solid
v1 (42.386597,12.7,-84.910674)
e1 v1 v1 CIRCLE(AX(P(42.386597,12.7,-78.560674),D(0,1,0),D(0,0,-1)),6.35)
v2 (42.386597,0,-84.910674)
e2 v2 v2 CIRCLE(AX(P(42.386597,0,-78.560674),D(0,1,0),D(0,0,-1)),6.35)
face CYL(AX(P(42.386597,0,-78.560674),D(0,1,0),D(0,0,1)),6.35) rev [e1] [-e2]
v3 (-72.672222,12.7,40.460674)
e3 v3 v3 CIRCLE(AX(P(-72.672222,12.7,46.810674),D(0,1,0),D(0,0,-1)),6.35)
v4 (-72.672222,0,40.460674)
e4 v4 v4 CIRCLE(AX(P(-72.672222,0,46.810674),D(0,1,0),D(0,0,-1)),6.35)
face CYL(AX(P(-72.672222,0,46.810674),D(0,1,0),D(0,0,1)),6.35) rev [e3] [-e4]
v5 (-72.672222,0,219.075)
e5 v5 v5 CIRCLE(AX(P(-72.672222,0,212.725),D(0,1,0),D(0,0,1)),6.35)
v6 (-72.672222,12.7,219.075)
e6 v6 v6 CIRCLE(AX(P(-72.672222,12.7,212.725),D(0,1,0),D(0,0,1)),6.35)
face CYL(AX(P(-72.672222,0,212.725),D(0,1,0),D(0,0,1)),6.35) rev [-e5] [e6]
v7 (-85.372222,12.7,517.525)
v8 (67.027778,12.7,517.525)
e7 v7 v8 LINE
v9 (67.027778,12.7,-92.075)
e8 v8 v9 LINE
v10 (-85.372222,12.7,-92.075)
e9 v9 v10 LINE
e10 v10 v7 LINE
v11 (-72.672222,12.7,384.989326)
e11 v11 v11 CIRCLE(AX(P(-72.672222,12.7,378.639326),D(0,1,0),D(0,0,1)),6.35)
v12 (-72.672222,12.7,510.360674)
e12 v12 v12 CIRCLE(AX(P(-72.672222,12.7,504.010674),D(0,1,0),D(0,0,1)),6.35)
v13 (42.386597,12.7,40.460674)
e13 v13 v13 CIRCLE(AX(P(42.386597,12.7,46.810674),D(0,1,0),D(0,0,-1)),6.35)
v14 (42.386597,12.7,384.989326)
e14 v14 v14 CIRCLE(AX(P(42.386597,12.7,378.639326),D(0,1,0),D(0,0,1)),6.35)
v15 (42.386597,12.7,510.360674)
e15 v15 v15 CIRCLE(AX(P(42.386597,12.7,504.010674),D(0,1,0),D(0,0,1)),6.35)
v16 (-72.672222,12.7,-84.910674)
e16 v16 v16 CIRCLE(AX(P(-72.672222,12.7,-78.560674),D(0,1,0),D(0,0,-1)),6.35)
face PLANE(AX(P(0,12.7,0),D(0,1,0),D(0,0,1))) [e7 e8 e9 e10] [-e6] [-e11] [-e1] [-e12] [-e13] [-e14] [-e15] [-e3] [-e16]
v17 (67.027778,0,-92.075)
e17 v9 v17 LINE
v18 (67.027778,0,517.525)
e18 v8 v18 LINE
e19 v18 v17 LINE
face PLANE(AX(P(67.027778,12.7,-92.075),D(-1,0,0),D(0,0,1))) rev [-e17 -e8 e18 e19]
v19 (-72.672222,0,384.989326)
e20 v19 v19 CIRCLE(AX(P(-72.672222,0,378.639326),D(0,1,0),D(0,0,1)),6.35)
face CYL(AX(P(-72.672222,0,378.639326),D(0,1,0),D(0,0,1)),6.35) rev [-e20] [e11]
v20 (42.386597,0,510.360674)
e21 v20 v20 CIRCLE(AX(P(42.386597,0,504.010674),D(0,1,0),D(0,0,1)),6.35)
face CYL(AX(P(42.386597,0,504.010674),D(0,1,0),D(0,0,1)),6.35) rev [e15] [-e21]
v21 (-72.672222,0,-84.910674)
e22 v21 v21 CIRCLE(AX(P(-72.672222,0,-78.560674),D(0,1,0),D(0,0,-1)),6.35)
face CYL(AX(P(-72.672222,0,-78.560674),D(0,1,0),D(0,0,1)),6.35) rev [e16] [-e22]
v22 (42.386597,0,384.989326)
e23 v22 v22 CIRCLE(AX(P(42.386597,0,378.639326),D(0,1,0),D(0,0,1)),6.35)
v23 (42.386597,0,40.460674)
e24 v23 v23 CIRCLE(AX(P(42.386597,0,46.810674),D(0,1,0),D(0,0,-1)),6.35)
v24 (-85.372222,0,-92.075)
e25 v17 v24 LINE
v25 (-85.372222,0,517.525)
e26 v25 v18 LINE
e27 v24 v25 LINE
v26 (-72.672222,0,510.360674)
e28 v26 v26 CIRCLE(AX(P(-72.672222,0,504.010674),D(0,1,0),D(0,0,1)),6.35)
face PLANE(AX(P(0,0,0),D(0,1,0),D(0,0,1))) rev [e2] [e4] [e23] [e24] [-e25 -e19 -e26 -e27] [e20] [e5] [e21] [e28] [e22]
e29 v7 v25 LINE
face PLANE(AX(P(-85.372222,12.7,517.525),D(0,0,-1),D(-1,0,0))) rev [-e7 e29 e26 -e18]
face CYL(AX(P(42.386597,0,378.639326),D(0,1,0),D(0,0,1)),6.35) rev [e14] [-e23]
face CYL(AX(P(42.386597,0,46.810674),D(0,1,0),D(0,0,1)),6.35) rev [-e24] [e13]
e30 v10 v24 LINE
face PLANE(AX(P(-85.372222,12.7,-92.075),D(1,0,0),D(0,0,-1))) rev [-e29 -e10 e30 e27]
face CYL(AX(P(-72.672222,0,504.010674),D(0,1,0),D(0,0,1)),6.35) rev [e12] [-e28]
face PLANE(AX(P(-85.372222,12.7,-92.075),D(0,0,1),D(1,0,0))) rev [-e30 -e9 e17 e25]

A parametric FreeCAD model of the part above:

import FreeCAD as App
import Part
import Sketcher

V = App.Vector
Q = App.Units.Quantity


def add_polygon(sketch, points):
    """Adds a closed chain of lines whose ends are joined by coincident constraints."""
    first, n = sketch.GeometryCount, len(points)
    for a, b in zip(points, points[1:] + points[:1]):
        sketch.addGeometry(Part.LineSegment(App.Vector(*a, 0), App.Vector(*b, 0)), False)
    for i in range(n):
        sketch.addConstraint(Sketcher.Constraint("Coincident", first + i, 2, first + (i + 1) % n, 1))

doc = App.newDocument("Part")
params = doc.addObject("Spreadsheet::Sheet", "Params")
for row, (alias, value) in enumerate([
    ("sketch1_width", "6 in"),
    ("sketch1_height", "24 in"),
    ("pad1_length", "0.5 in"),
    ("sketch2_diameter", "0.5 in"),
    ("pocket1_length", "0.5 in"),
], start=1):
    params.set(f"A{row}", alias)
    params.set(f"B{row}", "=" + value)
    params.setAlias(f"B{row}", alias)

body = doc.addObject("PartDesign::Body", "Body")

# Sketch on XZ plane
sketch1 = doc.addObject("Sketcher::SketchObject", "Sketch")
body.addObject(sketch1)
sketch1.AttachmentSupport = (doc.XZ_Plane, [""])
sketch1.MapMode = "FlatFace"
add_polygon(sketch1, [(-85, -92), (-85, 518), (67, 518), (67, -92)])  # lines 0-3
sketch1.addConstraint([
    Sketcher.Constraint("Vertical", 0),
    Sketcher.Constraint("Horizontal", 1),
    Sketcher.Constraint("Vertical", 2),
    Sketcher.Constraint("Horizontal", 3),
    Sketcher.Constraint("DistanceX", 1, 1, 1, 2, Q("6 in")),
    Sketcher.Constraint("DistanceY", 0, 1, 0, 2, Q("24 in")),
    Sketcher.Constraint("DistanceY", -1, 1, 0, 2, Q("20.375 in")),
    Sketcher.Constraint("DistanceX", 0, 2, -1, 1, Q("85.372222 mm")),
])
sketch1.setExpression("Constraints[8]", "Params.sketch1_width")
sketch1.setExpression("Constraints[9]", "Params.sketch1_height")
pad1 = doc.addObject("PartDesign::Pad", "Pad")
body.addObject(pad1)
pad1.Profile = sketch1
pad1.setExpression("Length", "Params.pad1_length")
pad1.Reversed = True

# Sketch on XZ plane
sketch2 = doc.addObject("Sketcher::SketchObject", "Sketch001")
body.addObject(sketch2)
sketch2.AttachmentSupport = (doc.XZ_Plane, [""])
sketch2.MapMode = "FlatFace"
sketch2.AttachmentOffset = App.Placement(V(0, 0, -0.5 * 25.4), App.Rotation())
sketch2.addGeometry([
    Part.Circle(V(-73, 213, 0), V(0, 0, 1), 6),  # 0
    Part.Circle(V(-73, 379, 0), V(0, 0, 1), 6),  # 1
    Part.Circle(V(-73, 504, 0), V(0, 0, 1), 6),  # 2
    Part.Circle(V(42, 504, 0), V(0, 0, 1), 6),  # 3
    Part.Circle(V(42, 379, 0), V(0, 0, 1), 6),  # 4
    Part.Circle(V(42, 47, 0), V(0, 0, 1), 6),  # 5
    Part.Circle(V(42, -79, 0), V(0, 0, 1), 6),  # 6
    Part.Circle(V(-73, 47, 0), V(0, 0, 1), 6),  # 7
    Part.Circle(V(-73, -79, 0), V(0, 0, 1), 6),  # 8
], False)
sketch2.addConstraint([
    Sketcher.Constraint("Equal", 0, 1),
    Sketcher.Constraint("Equal", 1, 2),
    Sketcher.Constraint("Equal", 2, 3),
    Sketcher.Constraint("Equal", 3, 4),
    Sketcher.Constraint("Equal", 4, 5),
    Sketcher.Constraint("Equal", 5, 6),
    Sketcher.Constraint("Equal", 6, 7),
    Sketcher.Constraint("Equal", 7, 8),
    Sketcher.Constraint("Horizontal", 2, 3, 3, 3),
    Sketcher.Constraint("Horizontal", 1, 3, 4, 3),
    Sketcher.Constraint("Horizontal", 5, 3, 7, 3),
    Sketcher.Constraint("Horizontal", 6, 3, 8, 3),
    Sketcher.Constraint("Vertical", 0, 3, 1, 3),
    Sketcher.Constraint("Vertical", 1, 3, 2, 3),
    Sketcher.Constraint("Vertical", 3, 3, 4, 3),
    Sketcher.Constraint("Vertical", 4, 3, 5, 3),
    Sketcher.Constraint("Vertical", 5, 3, 6, 3),
    Sketcher.Constraint("Vertical", 2, 3, 7, 3),
    Sketcher.Constraint("Vertical", 7, 3, 8, 3),
    Sketcher.Constraint("Diameter", 0, Q("0.5 in")),
    Sketcher.Constraint("DistanceY", 5, 3, 3, 3, Q("18 in")),
    Sketcher.Constraint("DistanceY", 6, 3, 4, 3, Q("18 in")),
    Sketcher.Constraint("DistanceY", -1, 1, 0, 3, Q("8.375 in")),
    Sketcher.Constraint("DistanceY", 1, 3, 2, 3, Q("125.371348 mm")),
    Sketcher.Constraint("DistanceX", 2, 3, 3, 3, Q("115.058819 mm")),
    Sketcher.Constraint("DistanceX", 0, 3, -1, 1, Q("72.672222 mm")),
    Sketcher.Constraint("DistanceY", -1, 1, 1, 3, Q("378.639326 mm")),
])
sketch2.setExpression("Constraints[19]", "Params.sketch2_diameter")
pocket1 = doc.addObject("PartDesign::Pocket", "Pocket")
body.addObject(pocket1)
pocket1.Profile = sketch2
pocket1.setExpression("Length", "Params.pocket1_length")
pocket1.Reversed = True

doc.recompute()
